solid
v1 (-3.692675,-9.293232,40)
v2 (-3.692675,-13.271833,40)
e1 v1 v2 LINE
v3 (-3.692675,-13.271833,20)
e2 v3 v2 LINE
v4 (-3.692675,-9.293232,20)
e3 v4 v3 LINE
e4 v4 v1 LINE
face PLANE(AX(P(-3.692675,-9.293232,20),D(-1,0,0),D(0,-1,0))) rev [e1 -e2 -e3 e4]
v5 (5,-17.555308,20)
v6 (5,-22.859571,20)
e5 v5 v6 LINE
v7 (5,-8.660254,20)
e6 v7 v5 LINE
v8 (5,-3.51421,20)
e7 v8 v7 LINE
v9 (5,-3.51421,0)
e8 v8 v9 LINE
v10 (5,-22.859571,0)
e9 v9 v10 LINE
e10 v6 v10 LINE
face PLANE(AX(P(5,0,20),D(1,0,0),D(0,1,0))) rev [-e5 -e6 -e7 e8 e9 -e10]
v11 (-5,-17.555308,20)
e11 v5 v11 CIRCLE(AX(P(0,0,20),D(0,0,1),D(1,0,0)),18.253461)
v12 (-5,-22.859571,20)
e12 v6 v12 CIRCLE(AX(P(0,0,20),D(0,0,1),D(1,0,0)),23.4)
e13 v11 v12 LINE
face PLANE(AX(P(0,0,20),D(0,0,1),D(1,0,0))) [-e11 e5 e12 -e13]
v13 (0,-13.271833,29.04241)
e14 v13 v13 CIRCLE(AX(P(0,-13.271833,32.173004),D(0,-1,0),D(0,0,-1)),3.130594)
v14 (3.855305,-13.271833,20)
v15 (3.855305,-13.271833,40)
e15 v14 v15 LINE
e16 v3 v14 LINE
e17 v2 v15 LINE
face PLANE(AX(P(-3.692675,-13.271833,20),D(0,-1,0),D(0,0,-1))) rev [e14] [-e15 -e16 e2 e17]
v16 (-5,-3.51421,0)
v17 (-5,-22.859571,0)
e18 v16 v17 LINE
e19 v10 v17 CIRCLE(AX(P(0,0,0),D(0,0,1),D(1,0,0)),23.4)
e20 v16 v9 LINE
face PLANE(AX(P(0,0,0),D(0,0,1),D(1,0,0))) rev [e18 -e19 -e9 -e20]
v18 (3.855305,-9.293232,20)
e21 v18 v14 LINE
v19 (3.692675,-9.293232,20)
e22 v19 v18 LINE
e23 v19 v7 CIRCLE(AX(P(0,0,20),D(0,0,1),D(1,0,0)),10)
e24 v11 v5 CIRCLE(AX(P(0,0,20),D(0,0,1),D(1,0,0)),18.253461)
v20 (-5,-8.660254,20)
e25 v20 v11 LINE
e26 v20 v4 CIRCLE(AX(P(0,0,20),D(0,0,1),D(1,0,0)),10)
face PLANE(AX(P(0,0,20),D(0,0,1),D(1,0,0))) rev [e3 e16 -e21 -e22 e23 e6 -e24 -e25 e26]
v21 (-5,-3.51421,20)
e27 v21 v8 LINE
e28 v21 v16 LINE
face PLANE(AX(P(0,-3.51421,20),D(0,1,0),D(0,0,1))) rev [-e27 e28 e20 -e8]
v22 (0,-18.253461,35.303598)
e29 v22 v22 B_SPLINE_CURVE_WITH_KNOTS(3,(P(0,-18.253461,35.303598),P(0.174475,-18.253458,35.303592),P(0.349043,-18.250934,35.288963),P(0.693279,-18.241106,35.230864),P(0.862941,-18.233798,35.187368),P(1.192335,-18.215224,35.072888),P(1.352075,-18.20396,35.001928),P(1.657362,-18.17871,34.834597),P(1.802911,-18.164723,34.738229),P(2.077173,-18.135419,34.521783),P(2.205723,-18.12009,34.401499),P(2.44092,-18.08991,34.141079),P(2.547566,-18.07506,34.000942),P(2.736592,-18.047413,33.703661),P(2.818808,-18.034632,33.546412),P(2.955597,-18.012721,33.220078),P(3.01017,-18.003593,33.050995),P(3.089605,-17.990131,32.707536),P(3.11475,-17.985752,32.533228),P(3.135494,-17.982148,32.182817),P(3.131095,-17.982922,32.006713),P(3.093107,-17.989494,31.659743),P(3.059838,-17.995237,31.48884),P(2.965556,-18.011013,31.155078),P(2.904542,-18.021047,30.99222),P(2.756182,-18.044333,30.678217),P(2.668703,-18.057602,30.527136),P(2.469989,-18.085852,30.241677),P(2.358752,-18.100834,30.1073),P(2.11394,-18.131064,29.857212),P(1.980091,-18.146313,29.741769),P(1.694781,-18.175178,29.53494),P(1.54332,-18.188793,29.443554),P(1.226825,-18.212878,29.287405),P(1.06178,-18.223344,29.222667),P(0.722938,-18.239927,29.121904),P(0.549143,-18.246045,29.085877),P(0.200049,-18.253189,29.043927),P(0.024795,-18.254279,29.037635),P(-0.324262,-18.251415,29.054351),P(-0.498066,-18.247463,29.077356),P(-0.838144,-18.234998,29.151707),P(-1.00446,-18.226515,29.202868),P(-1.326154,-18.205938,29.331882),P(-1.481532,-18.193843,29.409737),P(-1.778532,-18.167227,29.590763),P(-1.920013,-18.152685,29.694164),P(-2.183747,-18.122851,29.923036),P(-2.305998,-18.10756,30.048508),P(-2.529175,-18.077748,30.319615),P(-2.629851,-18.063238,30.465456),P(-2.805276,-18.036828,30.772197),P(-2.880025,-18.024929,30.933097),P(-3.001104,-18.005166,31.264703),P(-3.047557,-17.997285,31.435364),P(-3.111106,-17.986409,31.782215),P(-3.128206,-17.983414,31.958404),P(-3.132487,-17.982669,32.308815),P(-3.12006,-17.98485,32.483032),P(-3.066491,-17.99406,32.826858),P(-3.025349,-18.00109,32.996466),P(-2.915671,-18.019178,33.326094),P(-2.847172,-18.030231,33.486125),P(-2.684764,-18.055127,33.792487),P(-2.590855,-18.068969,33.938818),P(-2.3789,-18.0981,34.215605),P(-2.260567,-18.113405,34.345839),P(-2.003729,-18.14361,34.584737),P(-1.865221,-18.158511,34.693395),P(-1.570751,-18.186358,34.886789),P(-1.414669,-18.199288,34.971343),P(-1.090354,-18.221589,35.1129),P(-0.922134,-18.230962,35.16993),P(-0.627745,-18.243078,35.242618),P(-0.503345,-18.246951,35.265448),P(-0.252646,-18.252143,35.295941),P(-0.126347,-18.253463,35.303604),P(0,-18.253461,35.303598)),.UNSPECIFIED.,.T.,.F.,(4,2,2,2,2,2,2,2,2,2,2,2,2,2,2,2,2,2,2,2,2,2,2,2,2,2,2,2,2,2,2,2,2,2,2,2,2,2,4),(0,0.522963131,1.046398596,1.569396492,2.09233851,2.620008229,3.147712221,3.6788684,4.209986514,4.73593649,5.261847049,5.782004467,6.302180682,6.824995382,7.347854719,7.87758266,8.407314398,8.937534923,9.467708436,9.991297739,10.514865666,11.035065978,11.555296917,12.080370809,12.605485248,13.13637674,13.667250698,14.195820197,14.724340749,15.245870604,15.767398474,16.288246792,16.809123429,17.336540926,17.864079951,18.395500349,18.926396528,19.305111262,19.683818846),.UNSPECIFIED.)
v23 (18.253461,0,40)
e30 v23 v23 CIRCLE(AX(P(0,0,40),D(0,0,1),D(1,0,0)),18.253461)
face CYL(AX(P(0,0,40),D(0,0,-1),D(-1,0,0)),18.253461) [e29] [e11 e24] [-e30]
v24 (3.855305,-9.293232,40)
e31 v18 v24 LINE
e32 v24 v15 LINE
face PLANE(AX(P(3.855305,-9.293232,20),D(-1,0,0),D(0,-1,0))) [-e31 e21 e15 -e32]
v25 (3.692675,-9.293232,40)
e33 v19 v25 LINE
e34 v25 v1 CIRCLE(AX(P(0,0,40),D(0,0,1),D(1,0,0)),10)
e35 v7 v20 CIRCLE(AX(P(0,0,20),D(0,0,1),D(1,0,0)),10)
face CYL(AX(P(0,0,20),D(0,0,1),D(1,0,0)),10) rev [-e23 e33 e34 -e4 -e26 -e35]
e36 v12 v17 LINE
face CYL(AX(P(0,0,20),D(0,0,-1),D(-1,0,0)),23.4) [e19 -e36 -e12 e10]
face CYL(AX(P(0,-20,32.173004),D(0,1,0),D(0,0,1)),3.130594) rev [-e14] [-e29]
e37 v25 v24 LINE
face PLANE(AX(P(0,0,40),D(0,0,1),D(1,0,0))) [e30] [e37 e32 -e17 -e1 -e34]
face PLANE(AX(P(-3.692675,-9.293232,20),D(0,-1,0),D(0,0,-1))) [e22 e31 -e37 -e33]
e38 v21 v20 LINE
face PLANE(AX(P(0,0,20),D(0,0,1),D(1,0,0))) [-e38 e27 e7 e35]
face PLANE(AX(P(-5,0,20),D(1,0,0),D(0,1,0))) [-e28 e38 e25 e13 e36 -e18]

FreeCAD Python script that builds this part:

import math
import FreeCAD as App
import Part
import Sketcher

V = App.Vector

doc = App.newDocument("Part")
body = doc.addObject("PartDesign::Body", "Body")

sketch1 = body.newObject("Sketcher::SketchObject", "Sketch")
sketch1.AttachmentSupport = (doc.getObject("XY_Plane"), [""])
sketch1.MapMode = "FlatFace"
sketch1.addGeometry(Part.LineSegment(V(-5, -23, 0), V(-5, -4, 0)), False)
sketch1.addGeometry(Part.LineSegment(V(-5, -4, 0), V(5, -4, 0)), False)
sketch1.addGeometry(Part.LineSegment(V(5, -4, 0), V(5, -23, 0)), False)
sketch1.addGeometry(Part.ArcOfCircle(Part.Circle(V(0, 0, 0), V(0, 0, 1), 23), math.radians(-78), math.radians(0)), False)
sketch1.addGeometry(Part.ArcOfCircle(Part.Circle(V(0, 0, 0), V(0, 0, 1), 23), math.radians(0), math.radians(258)), False)
sketch1.addConstraint(Sketcher.Constraint("Coincident", 0, 2, 1, 1))
sketch1.addConstraint(Sketcher.Constraint("Coincident", 1, 2, 2, 1))
sketch1.addConstraint(Sketcher.Constraint("Coincident", 2, 2, 3, 1))
sketch1.addConstraint(Sketcher.Constraint("Tangent", 3, 2, 4, 1))
sketch1.addConstraint(Sketcher.Constraint("Coincident", 4, 2, 0, 1))
sketch1.addConstraint(Sketcher.Constraint("Vertical", 0))
sketch1.addConstraint(Sketcher.Constraint("Horizontal", 1))
sketch1.addConstraint(Sketcher.Constraint("Vertical", 2))
sketch1.addConstraint(Sketcher.Constraint("Coincident", 3, 3, -1, 1))
sketch1.addConstraint(Sketcher.Constraint("Equal", 3, 4))
sketch1.addConstraint(Sketcher.Constraint("PointOnObject", 3, 2, -1))
sketch1.addConstraint(Sketcher.Constraint("Horizontal", 2, 2, 4, 2))
sketch1.addConstraint(Sketcher.Constraint("Radius", 3, 23.4))
sketch1.addConstraint(Sketcher.Constraint("DistanceX", 1, 1, 1, 2, 10.0))
sketch1.addConstraint(Sketcher.Constraint("DistanceY", 0, 1, 0, 2, 19.345361))
pad1 = body.newObject("PartDesign::Pad", "Pad")
pad1.Profile = sketch1
pad1.Length = 20

sketch2 = body.newObject("Sketcher::SketchObject", "Sketch001")
sketch2.AttachmentSupport = (doc.getObject("XY_Plane"), [""])
sketch2.MapMode = "FlatFace"
sketch2.AttachmentOffset = App.Placement(V(0, 0, 20), App.Rotation())
sketch2.addGeometry(Part.Circle(V(0, 0, 0), V(0, 0, 1), 18), False)
sketch2.addConstraint(Sketcher.Constraint("Coincident", 0, 3, -1, 1))
sketch2.addConstraint(Sketcher.Constraint("Diameter", 0, 36.506922))
pad2 = body.newObject("PartDesign::Pad", "Pad001")
pad2.Profile = sketch2
pad2.Length = 20

sketch3 = body.newObject("Sketcher::SketchObject", "Sketch002")
sketch3.AttachmentSupport = (doc.getObject("XY_Plane"), [""])
sketch3.MapMode = "FlatFace"
sketch3.AttachmentOffset = App.Placement(V(0, 0, 40), App.Rotation())
sketch3.addGeometry(Part.ArcOfCircle(Part.Circle(V(0, 0, 0), V(0, 0, 1), 10), math.radians(-68), math.radians(248)), False)
sketch3.addGeometry(Part.LineSegment(V(-3.69, -9.29, 0), V(-3.69, -13.27, 0)), False)
sketch3.addGeometry(Part.LineSegment(V(-3.69, -13.27, 0), V(3.86, -13.27, 0)), False)
sketch3.addGeometry(Part.LineSegment(V(3.86, -13.27, 0), V(3.86, -9.29, 0)), False)
sketch3.addGeometry(Part.LineSegment(V(3.86, -9.29, 0), V(3.69, -9.29, 0)), False)
sketch3.addConstraint(Sketcher.Constraint("Coincident", 0, 2, 1, 1))
sketch3.addConstraint(Sketcher.Constraint("Coincident", 1, 2, 2, 1))
sketch3.addConstraint(Sketcher.Constraint("Coincident", 2, 2, 3, 1))
sketch3.addConstraint(Sketcher.Constraint("Coincident", 3, 2, 4, 1))
sketch3.addConstraint(Sketcher.Constraint("Coincident", 4, 2, 0, 1))
sketch3.addConstraint(Sketcher.Constraint("Vertical", 1))
sketch3.addConstraint(Sketcher.Constraint("Horizontal", 2))
sketch3.addConstraint(Sketcher.Constraint("Vertical", 3))
sketch3.addConstraint(Sketcher.Constraint("Horizontal", 4))
sketch3.addConstraint(Sketcher.Constraint("Coincident", 0, 3, -1, 1))
sketch3.addConstraint(Sketcher.Constraint("Horizontal", 0, 2, 3, 2))
sketch3.addConstraint(Sketcher.Constraint("Radius", 0, 10.0))
sketch3.addConstraint(Sketcher.Constraint("DistanceY", 1, 2, 1, 1, 3.978601))
sketch3.addConstraint(Sketcher.Constraint("DistanceX", 2, 1, 2, 2, 7.547979))
sketch3.addConstraint(Sketcher.Constraint("DistanceX", 4, 2, 4, 1, 0.16263))
pocket1 = body.newObject("PartDesign::Pocket", "Pocket")
pocket1.Profile = sketch3
pocket1.Length = 20

sketch4 = body.newObject("Sketcher::SketchObject", "Sketch003")
sketch4.AttachmentSupport = (doc.getObject("XZ_Plane"), [""])
sketch4.MapMode = "FlatFace"
sketch4.addGeometry(Part.Circle(V(0, 32.2, 0), V(0, 0, 1), 3.1), False)
sketch4.addConstraint(Sketcher.Constraint("PointOnObject", 0, 3, -2))
sketch4.addConstraint(Sketcher.Constraint("Diameter", 0, 6.261188))
sketch4.addConstraint(Sketcher.Constraint("DistanceY", -1, 1, 0, 3, 32.173004))
pocket2 = body.newObject("PartDesign::Pocket", "Pocket001")
pocket2.Profile = sketch4
pocket2.Length = 20
pocket2.Reversed = True

doc.recompute()
